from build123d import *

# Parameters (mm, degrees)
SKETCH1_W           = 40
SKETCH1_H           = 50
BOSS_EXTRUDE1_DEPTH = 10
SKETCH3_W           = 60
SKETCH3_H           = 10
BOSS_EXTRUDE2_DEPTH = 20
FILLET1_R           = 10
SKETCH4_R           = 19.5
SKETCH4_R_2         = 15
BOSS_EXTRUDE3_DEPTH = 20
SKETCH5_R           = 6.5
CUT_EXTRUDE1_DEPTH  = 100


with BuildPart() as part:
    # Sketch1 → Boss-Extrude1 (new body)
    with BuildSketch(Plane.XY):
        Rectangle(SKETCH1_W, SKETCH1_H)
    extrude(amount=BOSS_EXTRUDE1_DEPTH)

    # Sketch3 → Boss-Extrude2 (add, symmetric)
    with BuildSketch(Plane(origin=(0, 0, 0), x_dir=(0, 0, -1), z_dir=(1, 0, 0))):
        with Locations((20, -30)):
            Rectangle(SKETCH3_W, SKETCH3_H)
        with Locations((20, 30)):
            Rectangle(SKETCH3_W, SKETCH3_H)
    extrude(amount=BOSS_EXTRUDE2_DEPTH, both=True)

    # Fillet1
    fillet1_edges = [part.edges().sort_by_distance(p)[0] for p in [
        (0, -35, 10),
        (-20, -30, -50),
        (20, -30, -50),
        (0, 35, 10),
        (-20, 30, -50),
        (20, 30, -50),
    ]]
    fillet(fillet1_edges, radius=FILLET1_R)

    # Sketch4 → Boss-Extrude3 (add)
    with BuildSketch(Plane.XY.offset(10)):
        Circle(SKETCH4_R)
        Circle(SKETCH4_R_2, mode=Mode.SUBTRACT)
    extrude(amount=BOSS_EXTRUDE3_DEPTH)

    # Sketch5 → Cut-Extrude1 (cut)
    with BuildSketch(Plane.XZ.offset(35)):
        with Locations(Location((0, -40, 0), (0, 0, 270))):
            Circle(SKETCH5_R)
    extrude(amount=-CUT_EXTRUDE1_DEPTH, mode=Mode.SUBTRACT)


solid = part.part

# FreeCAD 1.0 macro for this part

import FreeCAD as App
import Part
import Sketcher
from FreeCAD import Vector


def edges_at(feature, points):
    """Names of the edges that pass closest to the given points."""
    edges = feature.Shape.Edges
    near = lambda p: min(range(len(edges)), key=lambda i: edges[i].distToShape(Part.Vertex(*p))[0])
    return sorted({f"Edge{near(p) + 1}" for p in points})

doc = App.newDocument("Part")
params = doc.addObject("Spreadsheet::Sheet", "Params")
for row, (alias, value) in enumerate([
    ("sketch1_width", "40 mm"),
    ("sketch1_height", "50 mm"),
    ("pad1_length", "10 mm"),
    ("sketch2_width", "10 mm"),
    ("sketch2_height", "60 mm"),
    ("pad2_length", "40 mm"),
    ("fillet_radius", "10 mm"),
    ("sketch3_diameter", "39 mm"),
    ("sketch3_diameter2", "30 mm"),
    ("pad3_length", "20 mm"),
    ("sketch4_diameter", "13 mm"),
    ("pocket1_length", "100 mm"),
], start=1):
    params.set(f"A{row}", alias)
    params.set(f"B{row}", "=" + value)
    params.setAlias(f"B{row}", alias)

body = doc.addObject("PartDesign::Body", "Body")

# Sketch on XY plane
sketch1 = body.newObject("Sketcher::SketchObject", "Sketch")
sketch1.AttachmentSupport = (doc.getObject("XY_Plane"), [""])
sketch1.MapMode = "FlatFace"
sketch1.addGeometry([
    Part.LineSegment(Vector(-20, 25, 0), Vector(-20, -25, 0)),
    Part.LineSegment(Vector(-20, -25, 0), Vector(20, -25, 0)),
    Part.LineSegment(Vector(20, -25, 0), Vector(20, 25, 0)),
    Part.LineSegment(Vector(20, 25, 0), Vector(-20, 25, 0)),
], False)
sketch1.addConstraint([
    Sketcher.Constraint("Coincident", 0, 2, 1, 1),
    Sketcher.Constraint("Coincident", 1, 2, 2, 1),
    Sketcher.Constraint("Coincident", 2, 2, 3, 1),
    Sketcher.Constraint("Coincident", 3, 2, 0, 1),
    Sketcher.Constraint("Vertical", 0),
    Sketcher.Constraint("Horizontal", 1),
    Sketcher.Constraint("Vertical", 2),
    Sketcher.Constraint("Horizontal", 3),
    Sketcher.Constraint("Symmetric", 0, 2, 2, 2, -1, 1),
    Sketcher.Constraint("DistanceX", 1, 1, 1, 2, 40.0),
    Sketcher.Constraint("DistanceY", 0, 2, 0, 1, 50.0),
])
sketch1.setExpression("Constraints[9]", "Params.sketch1_width")
sketch1.setExpression("Constraints[10]", "Params.sketch1_height")
pad1 = body.newObject("PartDesign::Pad", "Pad")
pad1.Profile = sketch1
pad1.setExpression("Length", "Params.pad1_length")

# Sketch on YZ plane
sketch2 = body.newObject("Sketcher::SketchObject", "Sketch001")
sketch2.AttachmentSupport = (doc.getObject("YZ_Plane"), [""])
sketch2.MapMode = "FlatFace"
sketch2.addGeometry([
    Part.LineSegment(Vector(-25, 10, 0), Vector(-35, 10, 0)),  # 0
    Part.LineSegment(Vector(-35, 10, 0), Vector(-35, -50, 0)),  # 1
    Part.LineSegment(Vector(-35, -50, 0), Vector(-25, -50, 0)),  # 2
    Part.LineSegment(Vector(-25, -50, 0), Vector(-25, 10, 0)),  # 3
    Part.LineSegment(Vector(35, 10, 0), Vector(25, 10, 0)),  # 4
    Part.LineSegment(Vector(25, 10, 0), Vector(25, -50, 0)),  # 5
    Part.LineSegment(Vector(25, -50, 0), Vector(35, -50, 0)),  # 6
    Part.LineSegment(Vector(35, -50, 0), Vector(35, 10, 0)),  # 7
], False)
sketch2.addConstraint([
    Sketcher.Constraint("Coincident", 0, 2, 1, 1),
    Sketcher.Constraint("Coincident", 1, 2, 2, 1),
    Sketcher.Constraint("Coincident", 2, 2, 3, 1),
    Sketcher.Constraint("Coincident", 3, 2, 0, 1),
    Sketcher.Constraint("Coincident", 4, 2, 5, 1),
    Sketcher.Constraint("Coincident", 5, 2, 6, 1),
    Sketcher.Constraint("Coincident", 6, 2, 7, 1),
    Sketcher.Constraint("Coincident", 7, 2, 4, 1),
    Sketcher.Constraint("Horizontal", 0),
    Sketcher.Constraint("Vertical", 1),
    Sketcher.Constraint("Horizontal", 2),
    Sketcher.Constraint("Vertical", 3),
    Sketcher.Constraint("Horizontal", 4),
    Sketcher.Constraint("Vertical", 5),
    Sketcher.Constraint("Horizontal", 6),
    Sketcher.Constraint("Vertical", 7),
    Sketcher.Constraint("Symmetric", 3, 2, 4, 2, -2),
    Sketcher.Constraint("Symmetric", 1, 2, 6, 2, -2),
    Sketcher.Constraint("DistanceX", 0, 2, 0, 1, 10.0),
    Sketcher.Constraint("DistanceY", 1, 2, 1, 1, 60.0),
    Sketcher.Constraint("DistanceX", 0, 2, -1, 1, 35.0),
    Sketcher.Constraint("DistanceY", -1, 1, 0, 2, 10.0),
])
sketch2.setExpression("Constraints[18]", "Params.sketch2_width")
sketch2.setExpression("Constraints[19]", "Params.sketch2_height")
pad2 = body.newObject("PartDesign::Pad", "Pad001")
pad2.Profile = sketch2
pad2.setExpression("Length", "Params.pad2_length")
pad2.Midplane = True
doc.recompute()

fillet = body.newObject("PartDesign::Fillet", "Fillet")
fillet.Base = (pad2, edges_at(pad2, [
    (0, -35, 10),
    (-20, -30, -50),
    (20, -30, -50),
    (0, 35, 10),
    (-20, 30, -50),
    (20, 30, -50),
]))
fillet.setExpression("Radius", "Params.fillet_radius")

# Sketch on XY plane
sketch3 = body.newObject("Sketcher::SketchObject", "Sketch002")
sketch3.AttachmentSupport = (doc.getObject("XY_Plane"), [""])
sketch3.MapMode = "FlatFace"
sketch3.AttachmentOffset = App.Placement(Vector(0, 0, 10), App.Rotation())
sketch3.addGeometry([
    Part.Circle(Vector(0, 0, 0), Vector(0, 0, 1), 19.5),
    Part.Circle(Vector(0, 0, 0), Vector(0, 0, 1), 15),
], False)
sketch3.addConstraint([
    Sketcher.Constraint("Coincident", 0, 3, -1, 1),
    Sketcher.Constraint("Coincident", 1, 3, -1, 1),
    Sketcher.Constraint("Diameter", 0, 39.0),
    Sketcher.Constraint("Diameter", 1, 30.0),
])
sketch3.setExpression("Constraints[2]", "Params.sketch3_diameter")
sketch3.setExpression("Constraints[3]", "Params.sketch3_diameter2")
pad3 = body.newObject("PartDesign::Pad", "Pad002")
pad3.Profile = sketch3
pad3.setExpression("Length", "Params.pad3_length")

# Sketch on XZ plane
sketch4 = body.newObject("Sketcher::SketchObject", "Sketch003")
sketch4.AttachmentSupport = (doc.getObject("XZ_Plane"), [""])
sketch4.MapMode = "FlatFace"
sketch4.AttachmentOffset = App.Placement(Vector(0, 0, 35), App.Rotation())
sketch4.addGeometry(Part.Circle(Vector(0, -40, 0), Vector(0, 0, 1), 6.5), False)
sketch4.addConstraint([
    Sketcher.Constraint("PointOnObject", 0, 3, -2),
    Sketcher.Constraint("Diameter", 0, 13.0),
    Sketcher.Constraint("DistanceY", 0, 3, -1, 1, 40.0),
])
sketch4.setExpression("Constraints[1]", "Params.sketch4_diameter")
pocket1 = body.newObject("PartDesign::Pocket", "Pocket")
pocket1.Profile = sketch4
pocket1.setExpression("Length", "Params.pocket1_length")

doc.recompute()
